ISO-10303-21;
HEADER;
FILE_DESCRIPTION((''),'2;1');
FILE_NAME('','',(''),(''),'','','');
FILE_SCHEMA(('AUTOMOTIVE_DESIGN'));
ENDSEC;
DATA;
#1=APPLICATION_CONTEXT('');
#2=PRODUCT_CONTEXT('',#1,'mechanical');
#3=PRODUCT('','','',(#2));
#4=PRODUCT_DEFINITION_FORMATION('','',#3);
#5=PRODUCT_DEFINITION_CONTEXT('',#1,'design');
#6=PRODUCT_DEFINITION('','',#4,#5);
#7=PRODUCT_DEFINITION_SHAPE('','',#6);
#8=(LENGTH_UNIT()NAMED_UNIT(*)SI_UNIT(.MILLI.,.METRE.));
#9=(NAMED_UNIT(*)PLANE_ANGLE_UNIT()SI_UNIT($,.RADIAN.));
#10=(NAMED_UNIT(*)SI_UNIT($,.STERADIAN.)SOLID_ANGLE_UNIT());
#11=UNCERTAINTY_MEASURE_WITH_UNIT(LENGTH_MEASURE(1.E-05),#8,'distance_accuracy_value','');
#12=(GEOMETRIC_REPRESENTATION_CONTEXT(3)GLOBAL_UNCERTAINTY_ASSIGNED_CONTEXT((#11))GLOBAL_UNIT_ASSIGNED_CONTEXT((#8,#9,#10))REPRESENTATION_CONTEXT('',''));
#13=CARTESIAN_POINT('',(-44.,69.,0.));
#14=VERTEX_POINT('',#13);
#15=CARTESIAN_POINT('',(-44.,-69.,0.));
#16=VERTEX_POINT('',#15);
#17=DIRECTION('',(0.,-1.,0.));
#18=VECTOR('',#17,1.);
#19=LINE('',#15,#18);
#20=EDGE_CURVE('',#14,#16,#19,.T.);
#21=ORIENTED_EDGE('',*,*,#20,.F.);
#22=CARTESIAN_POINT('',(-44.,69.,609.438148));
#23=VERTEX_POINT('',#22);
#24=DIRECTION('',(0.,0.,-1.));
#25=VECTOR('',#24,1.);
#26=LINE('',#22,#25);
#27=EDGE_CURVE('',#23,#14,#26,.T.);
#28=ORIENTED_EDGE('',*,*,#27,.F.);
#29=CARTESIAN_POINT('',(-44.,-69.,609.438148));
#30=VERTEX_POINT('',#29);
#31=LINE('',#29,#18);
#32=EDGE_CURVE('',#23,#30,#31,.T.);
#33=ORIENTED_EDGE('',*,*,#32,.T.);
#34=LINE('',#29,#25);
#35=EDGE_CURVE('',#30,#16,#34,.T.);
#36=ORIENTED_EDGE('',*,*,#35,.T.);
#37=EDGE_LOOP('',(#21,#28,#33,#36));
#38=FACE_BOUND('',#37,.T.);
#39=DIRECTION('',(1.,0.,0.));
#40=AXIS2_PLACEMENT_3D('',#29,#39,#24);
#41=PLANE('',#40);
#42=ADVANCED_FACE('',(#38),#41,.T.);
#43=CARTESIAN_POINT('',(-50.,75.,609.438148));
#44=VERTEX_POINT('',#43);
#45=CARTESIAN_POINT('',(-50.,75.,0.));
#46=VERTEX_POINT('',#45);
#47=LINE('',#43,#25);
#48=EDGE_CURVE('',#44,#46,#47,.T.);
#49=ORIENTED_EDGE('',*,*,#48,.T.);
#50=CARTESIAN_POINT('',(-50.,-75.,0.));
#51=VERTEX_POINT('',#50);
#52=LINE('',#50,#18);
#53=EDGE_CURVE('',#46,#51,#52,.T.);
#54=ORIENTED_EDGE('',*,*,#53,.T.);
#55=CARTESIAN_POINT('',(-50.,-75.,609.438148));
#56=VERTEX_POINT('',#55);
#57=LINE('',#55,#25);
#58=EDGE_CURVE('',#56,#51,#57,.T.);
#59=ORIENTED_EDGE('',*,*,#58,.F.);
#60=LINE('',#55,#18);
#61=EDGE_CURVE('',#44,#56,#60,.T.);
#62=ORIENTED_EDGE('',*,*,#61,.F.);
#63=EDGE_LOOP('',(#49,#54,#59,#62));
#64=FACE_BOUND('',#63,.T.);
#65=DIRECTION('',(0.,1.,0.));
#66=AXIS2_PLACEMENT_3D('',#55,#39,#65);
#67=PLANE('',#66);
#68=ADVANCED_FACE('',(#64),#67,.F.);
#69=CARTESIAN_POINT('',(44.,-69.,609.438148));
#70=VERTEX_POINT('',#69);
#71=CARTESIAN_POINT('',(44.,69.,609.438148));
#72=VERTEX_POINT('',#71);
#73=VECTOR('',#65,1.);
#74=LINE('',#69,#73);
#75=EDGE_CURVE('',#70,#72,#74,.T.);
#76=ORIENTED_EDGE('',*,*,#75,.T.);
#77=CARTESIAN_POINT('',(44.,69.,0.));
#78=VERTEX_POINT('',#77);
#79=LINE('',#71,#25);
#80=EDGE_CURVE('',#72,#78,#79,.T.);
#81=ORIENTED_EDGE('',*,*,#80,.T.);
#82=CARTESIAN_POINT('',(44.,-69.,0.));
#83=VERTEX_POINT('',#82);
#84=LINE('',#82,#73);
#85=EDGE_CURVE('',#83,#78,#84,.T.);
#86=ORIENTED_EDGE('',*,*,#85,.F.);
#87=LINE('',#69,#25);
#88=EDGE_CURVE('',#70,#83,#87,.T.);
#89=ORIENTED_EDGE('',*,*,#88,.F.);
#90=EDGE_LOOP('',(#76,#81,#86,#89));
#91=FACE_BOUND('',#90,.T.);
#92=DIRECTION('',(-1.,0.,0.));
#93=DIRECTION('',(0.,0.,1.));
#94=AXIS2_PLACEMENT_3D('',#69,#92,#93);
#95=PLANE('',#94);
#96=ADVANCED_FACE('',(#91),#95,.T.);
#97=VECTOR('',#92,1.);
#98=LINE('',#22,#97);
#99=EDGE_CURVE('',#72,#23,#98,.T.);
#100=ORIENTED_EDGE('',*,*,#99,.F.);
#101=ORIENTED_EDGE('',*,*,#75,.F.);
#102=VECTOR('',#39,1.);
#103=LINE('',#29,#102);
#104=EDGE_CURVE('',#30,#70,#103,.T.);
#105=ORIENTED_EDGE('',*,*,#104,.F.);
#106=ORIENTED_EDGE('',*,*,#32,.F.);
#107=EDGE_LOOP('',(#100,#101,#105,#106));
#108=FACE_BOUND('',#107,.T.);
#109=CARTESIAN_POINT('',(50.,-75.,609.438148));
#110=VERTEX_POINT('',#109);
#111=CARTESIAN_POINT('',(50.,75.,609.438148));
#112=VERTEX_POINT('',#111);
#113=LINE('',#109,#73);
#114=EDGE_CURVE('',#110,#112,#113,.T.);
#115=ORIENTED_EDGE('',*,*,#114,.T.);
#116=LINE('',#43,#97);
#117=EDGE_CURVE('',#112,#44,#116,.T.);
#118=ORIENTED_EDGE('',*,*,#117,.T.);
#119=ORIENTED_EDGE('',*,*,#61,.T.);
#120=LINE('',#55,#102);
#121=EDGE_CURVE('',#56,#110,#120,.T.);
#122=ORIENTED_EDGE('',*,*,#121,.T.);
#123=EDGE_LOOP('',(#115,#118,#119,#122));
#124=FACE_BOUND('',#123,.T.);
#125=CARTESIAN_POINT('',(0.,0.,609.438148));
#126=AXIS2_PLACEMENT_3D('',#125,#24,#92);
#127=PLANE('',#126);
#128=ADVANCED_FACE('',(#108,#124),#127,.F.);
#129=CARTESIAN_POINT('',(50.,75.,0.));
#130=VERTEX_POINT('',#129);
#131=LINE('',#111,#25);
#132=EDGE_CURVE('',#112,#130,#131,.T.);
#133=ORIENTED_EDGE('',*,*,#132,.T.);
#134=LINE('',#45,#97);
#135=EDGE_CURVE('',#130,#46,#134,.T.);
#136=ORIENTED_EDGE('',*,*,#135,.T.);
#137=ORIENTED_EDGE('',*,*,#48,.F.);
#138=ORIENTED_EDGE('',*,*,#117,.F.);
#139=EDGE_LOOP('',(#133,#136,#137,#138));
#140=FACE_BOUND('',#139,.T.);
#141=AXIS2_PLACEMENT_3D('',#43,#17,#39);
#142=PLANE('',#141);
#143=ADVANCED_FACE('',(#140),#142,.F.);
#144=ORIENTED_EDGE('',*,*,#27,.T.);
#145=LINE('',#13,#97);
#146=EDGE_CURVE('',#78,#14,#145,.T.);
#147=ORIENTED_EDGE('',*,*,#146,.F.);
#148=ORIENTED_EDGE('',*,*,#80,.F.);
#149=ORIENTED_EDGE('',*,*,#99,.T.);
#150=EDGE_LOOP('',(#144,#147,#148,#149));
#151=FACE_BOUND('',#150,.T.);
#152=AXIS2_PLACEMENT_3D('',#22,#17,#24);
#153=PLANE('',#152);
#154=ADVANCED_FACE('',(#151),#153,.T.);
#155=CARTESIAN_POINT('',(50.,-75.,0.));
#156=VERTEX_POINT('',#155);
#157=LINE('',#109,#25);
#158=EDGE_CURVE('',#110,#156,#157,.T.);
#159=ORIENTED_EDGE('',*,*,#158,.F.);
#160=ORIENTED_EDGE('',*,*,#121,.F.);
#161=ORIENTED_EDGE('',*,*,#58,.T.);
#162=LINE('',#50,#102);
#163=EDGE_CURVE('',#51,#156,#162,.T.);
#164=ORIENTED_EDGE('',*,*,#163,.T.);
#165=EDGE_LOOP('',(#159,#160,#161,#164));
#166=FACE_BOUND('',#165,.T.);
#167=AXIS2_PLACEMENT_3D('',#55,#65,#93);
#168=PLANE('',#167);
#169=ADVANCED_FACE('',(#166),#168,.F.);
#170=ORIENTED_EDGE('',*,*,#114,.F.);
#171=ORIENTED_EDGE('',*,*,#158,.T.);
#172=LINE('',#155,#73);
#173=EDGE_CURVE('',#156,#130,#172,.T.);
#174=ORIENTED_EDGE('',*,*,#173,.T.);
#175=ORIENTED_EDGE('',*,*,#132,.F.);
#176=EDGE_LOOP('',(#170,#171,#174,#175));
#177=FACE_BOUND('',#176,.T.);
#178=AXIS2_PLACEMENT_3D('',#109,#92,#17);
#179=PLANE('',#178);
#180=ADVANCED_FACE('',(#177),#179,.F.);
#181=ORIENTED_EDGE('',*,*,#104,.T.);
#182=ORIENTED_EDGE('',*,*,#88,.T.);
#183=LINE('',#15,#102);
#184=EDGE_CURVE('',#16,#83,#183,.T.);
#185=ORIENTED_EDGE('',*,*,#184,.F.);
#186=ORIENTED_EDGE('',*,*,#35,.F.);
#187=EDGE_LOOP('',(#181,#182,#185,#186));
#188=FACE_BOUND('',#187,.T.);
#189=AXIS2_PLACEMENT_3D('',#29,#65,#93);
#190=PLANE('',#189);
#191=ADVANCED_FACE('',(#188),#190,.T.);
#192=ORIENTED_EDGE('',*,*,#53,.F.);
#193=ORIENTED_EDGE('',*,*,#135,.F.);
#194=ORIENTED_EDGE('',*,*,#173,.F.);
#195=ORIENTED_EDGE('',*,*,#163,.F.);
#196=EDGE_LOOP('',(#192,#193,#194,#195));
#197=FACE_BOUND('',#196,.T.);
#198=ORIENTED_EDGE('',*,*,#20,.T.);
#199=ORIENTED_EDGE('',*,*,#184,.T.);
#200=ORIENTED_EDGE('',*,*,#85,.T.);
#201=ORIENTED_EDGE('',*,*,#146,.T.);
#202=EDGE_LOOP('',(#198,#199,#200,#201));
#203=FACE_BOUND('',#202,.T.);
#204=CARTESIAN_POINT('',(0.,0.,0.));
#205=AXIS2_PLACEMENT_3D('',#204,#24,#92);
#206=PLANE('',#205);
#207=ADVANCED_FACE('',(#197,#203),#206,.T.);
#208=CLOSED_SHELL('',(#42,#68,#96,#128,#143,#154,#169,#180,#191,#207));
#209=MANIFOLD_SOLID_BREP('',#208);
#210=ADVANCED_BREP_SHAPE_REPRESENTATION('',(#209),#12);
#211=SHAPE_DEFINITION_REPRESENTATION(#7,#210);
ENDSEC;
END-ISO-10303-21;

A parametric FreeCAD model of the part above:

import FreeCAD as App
import Part
import Sketcher

V = App.Vector


def add_polygon(sketch, points):
    """Adds a closed chain of lines whose ends are joined by coincident constraints."""
    first, n = sketch.GeometryCount, len(points)
    for a, b in zip(points, points[1:] + points[:1]):
        sketch.addGeometry(Part.LineSegment(App.Vector(*a, 0), App.Vector(*b, 0)), False)
    for i in range(n):
        sketch.addConstraint(Sketcher.Constraint("Coincident", first + i, 2, first + (i + 1) % n, 1))

doc = App.newDocument("Part")
body = doc.addObject("PartDesign::Body", "Body")

# Sketch on XY plane
sketch1 = doc.addObject("Sketcher::SketchObject", "Sketch")
body.addObject(sketch1)
sketch1.AttachmentSupport = (doc.XY_Plane, [""])
sketch1.MapMode = "FlatFace"
add_polygon(sketch1, [(-50, 75), (-50, -75), (50, -75), (50, 75)])  # lines 0-3
add_polygon(sketch1, [(44, -69), (-44, -69), (-44, 69), (44, 69)])  # lines 4-7
sketch1.addConstraint([
    Sketcher.Constraint("Vertical", 0),
    Sketcher.Constraint("Horizontal", 1),
    Sketcher.Constraint("Vertical", 2),
    Sketcher.Constraint("Horizontal", 3),
    Sketcher.Constraint("Horizontal", 4),
    Sketcher.Constraint("Vertical", 5),
    Sketcher.Constraint("Horizontal", 6),
    Sketcher.Constraint("Vertical", 7),
    Sketcher.Constraint("Symmetric", 0, 2, 2, 2, -1, 1),
    Sketcher.Constraint("Symmetric", 4, 2, 6, 2, -1, 1),
    Sketcher.Constraint("DistanceX", 1, 1, 1, 2, 100.0),
    Sketcher.Constraint("DistanceX", 4, 2, 4, 1, 88.0),
    Sketcher.Constraint("DistanceY", 0, 2, 0, 1, 150.0),
    Sketcher.Constraint("DistanceY", 5, 1, 5, 2, 138.0),
])
pad1 = doc.addObject("PartDesign::Pad", "Pad")
body.addObject(pad1)
pad1.Profile = sketch1
pad1.Length = 609.438148

doc.recompute()
